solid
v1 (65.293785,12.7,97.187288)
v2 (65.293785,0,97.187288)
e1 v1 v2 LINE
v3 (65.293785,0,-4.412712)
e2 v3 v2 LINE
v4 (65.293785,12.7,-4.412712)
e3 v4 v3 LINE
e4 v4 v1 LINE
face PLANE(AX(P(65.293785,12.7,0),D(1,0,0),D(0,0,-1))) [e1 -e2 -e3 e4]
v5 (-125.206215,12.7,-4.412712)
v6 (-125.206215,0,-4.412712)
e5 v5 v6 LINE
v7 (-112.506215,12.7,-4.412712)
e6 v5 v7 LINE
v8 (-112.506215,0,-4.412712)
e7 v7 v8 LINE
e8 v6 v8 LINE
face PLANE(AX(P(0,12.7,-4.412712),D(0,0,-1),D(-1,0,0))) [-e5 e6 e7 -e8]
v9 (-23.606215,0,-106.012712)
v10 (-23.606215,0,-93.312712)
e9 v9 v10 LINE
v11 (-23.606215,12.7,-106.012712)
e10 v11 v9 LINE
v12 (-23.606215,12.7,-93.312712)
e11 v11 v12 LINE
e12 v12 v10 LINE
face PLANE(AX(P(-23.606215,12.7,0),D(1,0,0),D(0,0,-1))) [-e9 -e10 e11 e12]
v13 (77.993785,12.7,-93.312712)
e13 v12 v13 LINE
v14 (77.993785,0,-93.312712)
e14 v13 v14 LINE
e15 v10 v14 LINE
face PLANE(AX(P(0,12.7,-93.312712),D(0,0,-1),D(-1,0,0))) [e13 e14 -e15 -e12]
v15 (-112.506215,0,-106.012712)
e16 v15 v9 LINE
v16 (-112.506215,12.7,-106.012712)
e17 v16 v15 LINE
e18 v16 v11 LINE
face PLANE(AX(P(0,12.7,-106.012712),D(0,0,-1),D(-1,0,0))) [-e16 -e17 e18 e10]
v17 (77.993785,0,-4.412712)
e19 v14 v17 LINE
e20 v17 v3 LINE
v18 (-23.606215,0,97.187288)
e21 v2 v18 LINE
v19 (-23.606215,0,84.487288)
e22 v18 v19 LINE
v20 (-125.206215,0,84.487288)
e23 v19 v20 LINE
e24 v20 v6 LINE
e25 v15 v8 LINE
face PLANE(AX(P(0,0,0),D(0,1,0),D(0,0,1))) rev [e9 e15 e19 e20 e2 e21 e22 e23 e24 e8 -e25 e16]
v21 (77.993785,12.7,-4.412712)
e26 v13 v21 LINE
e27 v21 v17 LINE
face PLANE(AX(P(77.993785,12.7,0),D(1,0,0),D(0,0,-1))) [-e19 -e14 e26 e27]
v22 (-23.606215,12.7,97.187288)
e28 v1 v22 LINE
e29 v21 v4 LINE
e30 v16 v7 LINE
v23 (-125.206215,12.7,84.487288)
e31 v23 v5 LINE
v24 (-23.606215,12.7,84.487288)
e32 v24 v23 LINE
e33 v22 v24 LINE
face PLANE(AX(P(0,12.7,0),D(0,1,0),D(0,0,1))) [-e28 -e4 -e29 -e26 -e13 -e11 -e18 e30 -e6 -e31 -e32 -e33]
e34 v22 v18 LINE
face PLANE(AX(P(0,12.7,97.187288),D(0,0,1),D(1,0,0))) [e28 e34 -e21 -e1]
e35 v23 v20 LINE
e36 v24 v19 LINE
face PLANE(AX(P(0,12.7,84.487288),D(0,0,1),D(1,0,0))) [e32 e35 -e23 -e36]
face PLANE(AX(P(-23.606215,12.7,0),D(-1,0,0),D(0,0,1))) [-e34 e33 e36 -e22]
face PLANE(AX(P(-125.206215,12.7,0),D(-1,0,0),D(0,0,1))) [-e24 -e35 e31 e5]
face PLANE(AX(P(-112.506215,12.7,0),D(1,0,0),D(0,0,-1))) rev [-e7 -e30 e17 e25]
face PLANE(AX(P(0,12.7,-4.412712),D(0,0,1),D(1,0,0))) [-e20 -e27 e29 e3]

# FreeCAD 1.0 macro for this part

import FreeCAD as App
import Part
import Sketcher
from FreeCAD import Vector
Q = App.Units.Quantity


def add_polygon(sketch, points):
    """Adds a closed chain of lines whose ends are joined by coincident constraints."""
    first, n = sketch.GeometryCount, len(points)
    for a, b in zip(points, points[1:] + points[:1]):
        sketch.addGeometry(Part.LineSegment(App.Vector(*a, 0), App.Vector(*b, 0)), False)
    for i in range(n):
        sketch.addConstraint(Sketcher.Constraint("Coincident", first + i, 2, first + (i + 1) % n, 1))

doc = App.newDocument("Part")
body = doc.addObject("PartDesign::Body", "Body")

# Sketch on XZ plane
sketch1 = body.newObject("Sketcher::SketchObject", "Sketch")
sketch1.AttachmentSupport = (doc.getObject("XZ_Plane"), [""])
sketch1.MapMode = "FlatFace"
add_polygon(sketch1, [(-125, -4), (-125, 84), (-24, 84), (-24, 97), (65, 97), (65, -4), (78, -4), (78, -93), (-24, -93), (-24, -106), (-113, -106), (-113, -4)])  # lines 0-11
sketch1.addConstraint([
    Sketcher.Constraint("Vertical", 0),
    Sketcher.Constraint("Horizontal", 1),
    Sketcher.Constraint("Vertical", 2),
    Sketcher.Constraint("Horizontal", 3),
    Sketcher.Constraint("Vertical", 4),
    Sketcher.Constraint("Horizontal", 5),
    Sketcher.Constraint("Vertical", 6),
    Sketcher.Constraint("Horizontal", 7),
    Sketcher.Constraint("Vertical", 8),
    Sketcher.Constraint("Horizontal", 9),
    Sketcher.Constraint("Vertical", 10),
    Sketcher.Constraint("Horizontal", 11),
    Sketcher.Constraint("Horizontal", 5, 2, 10, 2),
    Sketcher.Constraint("Vertical", 2, 2, 7, 2),
    Sketcher.Constraint("Equal", 1, 7),
    Sketcher.Constraint("Equal", 3, 9),
    Sketcher.Constraint("Equal", 9, 0),
    Sketcher.Constraint("Equal", 11, 2),
    Sketcher.Constraint("Equal", 0, 6),
    Sketcher.Constraint("Equal", 2, 8),
    Sketcher.Constraint("DistanceX", 1, 1, 1, 2, Q("4 in")),
    Sketcher.Constraint("DistanceX", 3, 1, 3, 2, Q("3.5 in")),
    Sketcher.Constraint("DistanceY", -1, 1, 0, 2, Q("84.487288 mm")),
    Sketcher.Constraint("DistanceX", 0, 2, -1, 1, Q("125.206215 mm")),
])
pad1 = body.newObject("PartDesign::Pad", "Pad")
pad1.Profile = sketch1
pad1.Length = Q("0.5 in")
pad1.Reversed = True

doc.recompute()
